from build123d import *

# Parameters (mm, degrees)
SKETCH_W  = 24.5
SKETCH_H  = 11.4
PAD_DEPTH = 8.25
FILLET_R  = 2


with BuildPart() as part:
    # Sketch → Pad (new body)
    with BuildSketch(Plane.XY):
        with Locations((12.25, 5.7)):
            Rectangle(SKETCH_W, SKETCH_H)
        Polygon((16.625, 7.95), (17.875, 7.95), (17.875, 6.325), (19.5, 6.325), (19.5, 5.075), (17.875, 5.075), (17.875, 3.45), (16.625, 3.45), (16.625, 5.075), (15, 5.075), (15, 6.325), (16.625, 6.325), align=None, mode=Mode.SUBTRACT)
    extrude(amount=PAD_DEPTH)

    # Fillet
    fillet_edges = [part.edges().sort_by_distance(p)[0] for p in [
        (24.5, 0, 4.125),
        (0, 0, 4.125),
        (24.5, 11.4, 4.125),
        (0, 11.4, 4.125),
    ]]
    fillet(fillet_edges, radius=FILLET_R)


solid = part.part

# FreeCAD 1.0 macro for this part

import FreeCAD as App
import Part
import Sketcher


def edges_at(feature, points):
    """Names of the edges that pass closest to the given points."""
    edges = feature.Shape.Edges
    near = lambda p: min(range(len(edges)), key=lambda i: edges[i].distToShape(Part.Vertex(*p))[0])
    return sorted({f"Edge{near(p) + 1}" for p in points})

doc = App.newDocument("Part")
params = doc.addObject("Spreadsheet::Sheet", "Params")
for row, (alias, value) in enumerate([
    ("sketch1_width", "24.5 mm"),
    ("sketch1_height", "11.4 mm"),
    ("sketch1_width2", "1.25 mm"),
    ("pad1_length", "8.25 mm"),
    ("fillet_radius", "2 mm"),
], start=1):
    params.set(f"A{row}", alias)
    params.set(f"B{row}", "=" + value)
    params.setAlias(f"B{row}", alias)

body = doc.addObject("PartDesign::Body", "Body")

# Sketch on XY plane
sketch1 = doc.addObject("Sketcher::SketchObject", "Sketch")
body.addObject(sketch1)
sketch1.AttachmentSupport = (doc.XY_Plane, [""])
sketch1.MapMode = "FlatFace"
sketch1.addGeometry([
    Part.LineSegment(App.Vector(0, 11.4, 0), App.Vector(0, 0, 0)),  # 0
    Part.LineSegment(App.Vector(0, 0, 0), App.Vector(24.5, 0, 0)),  # 1
    Part.LineSegment(App.Vector(24.5, 0, 0), App.Vector(24.5, 11.4, 0)),  # 2
    Part.LineSegment(App.Vector(24.5, 11.4, 0), App.Vector(0, 11.4, 0)),  # 3
    Part.LineSegment(App.Vector(16.625, 6.325, 0), App.Vector(16.625, 7.95, 0)),  # 4
    Part.LineSegment(App.Vector(16.625, 7.95, 0), App.Vector(17.875, 7.95, 0)),  # 5
    Part.LineSegment(App.Vector(17.875, 7.95, 0), App.Vector(17.875, 6.325, 0)),  # 6
    Part.LineSegment(App.Vector(17.875, 6.325, 0), App.Vector(19.5, 6.325, 0)),  # 7
    Part.LineSegment(App.Vector(19.5, 6.325, 0), App.Vector(19.5, 5.075, 0)),  # 8
    Part.LineSegment(App.Vector(19.5, 5.075, 0), App.Vector(17.875, 5.075, 0)),  # 9
    Part.LineSegment(App.Vector(17.875, 5.075, 0), App.Vector(17.875, 3.45, 0)),  # 10
    Part.LineSegment(App.Vector(17.875, 3.45, 0), App.Vector(16.625, 3.45, 0)),  # 11
    Part.LineSegment(App.Vector(16.625, 3.45, 0), App.Vector(16.625, 5.075, 0)),  # 12
    Part.LineSegment(App.Vector(16.625, 5.075, 0), App.Vector(15, 5.075, 0)),  # 13
    Part.LineSegment(App.Vector(15, 5.075, 0), App.Vector(15, 6.325, 0)),  # 14
    Part.LineSegment(App.Vector(15, 6.325, 0), App.Vector(16.625, 6.325, 0)),  # 15
], False)
sketch1.addConstraint([
    Sketcher.Constraint("Coincident", 0, 2, 1, 1),
    Sketcher.Constraint("Coincident", 1, 2, 2, 1),
    Sketcher.Constraint("Coincident", 2, 2, 3, 1),
    Sketcher.Constraint("Coincident", 3, 2, 0, 1),
    Sketcher.Constraint("Coincident", 4, 2, 5, 1),
    Sketcher.Constraint("Coincident", 5, 2, 6, 1),
    Sketcher.Constraint("Coincident", 6, 2, 7, 1),
    Sketcher.Constraint("Coincident", 7, 2, 8, 1),
    Sketcher.Constraint("Coincident", 8, 2, 9, 1),
    Sketcher.Constraint("Coincident", 9, 2, 10, 1),
    Sketcher.Constraint("Coincident", 10, 2, 11, 1),
    Sketcher.Constraint("Coincident", 11, 2, 12, 1),
    Sketcher.Constraint("Coincident", 12, 2, 13, 1),
    Sketcher.Constraint("Coincident", 13, 2, 14, 1),
    Sketcher.Constraint("Coincident", 14, 2, 15, 1),
    Sketcher.Constraint("Coincident", 15, 2, 4, 1),
    Sketcher.Constraint("Vertical", 0),
    Sketcher.Constraint("Horizontal", 1),
    Sketcher.Constraint("Vertical", 2),
    Sketcher.Constraint("Horizontal", 3),
    Sketcher.Constraint("Vertical", 4),
    Sketcher.Constraint("Horizontal", 5),
    Sketcher.Constraint("Vertical", 6),
    Sketcher.Constraint("Horizontal", 7),
    Sketcher.Constraint("Vertical", 8),
    Sketcher.Constraint("Horizontal", 9),
    Sketcher.Constraint("Vertical", 10),
    Sketcher.Constraint("Horizontal", 11),
    Sketcher.Constraint("Vertical", 12),
    Sketcher.Constraint("Horizontal", 13),
    Sketcher.Constraint("Vertical", 14),
    Sketcher.Constraint("Horizontal", 15),
    Sketcher.Constraint("Coincident", 0, 2, -1, 1),
    Sketcher.Constraint("Horizontal", 9, 2, 12, 2),
    Sketcher.Constraint("Horizontal", 7, 2, 14, 2),
    Sketcher.Constraint("Vertical", 6, 2, 9, 2),
    Sketcher.Constraint("Vertical", 4, 2, 11, 2),
    Sketcher.Constraint("Equal", 9, 13),
    Sketcher.Constraint("Equal", 15, 4),
    Sketcher.Constraint("Equal", 11, 8),
    Sketcher.Constraint("Equal", 6, 10),
    Sketcher.Constraint("DistanceX", 1, 1, 1, 2, 24.5),
    Sketcher.Constraint("DistanceY", 0, 2, 0, 1, 11.4),
    Sketcher.Constraint("DistanceX", -1, 1, 13, 2, 15.0),
    Sketcher.Constraint("DistanceX", 7, 2, 2, 2, 5.0),
    Sketcher.Constraint("DistanceX", 5, 1, 5, 2, 1.25),
    Sketcher.Constraint("DistanceY", -1, 1, 4, 2, 7.95),
])
sketch1.setExpression("Constraints[41]", "Params.sketch1_width")
sketch1.setExpression("Constraints[42]", "Params.sketch1_height")
sketch1.setExpression("Constraints[45]", "Params.sketch1_width2")
pad1 = doc.addObject("PartDesign::Pad", "Pad")
body.addObject(pad1)
pad1.Profile = sketch1
pad1.setExpression("Length", "Params.pad1_length")
doc.recompute()

fillet = doc.addObject("PartDesign::Fillet", "Fillet")
body.addObject(fillet)
fillet.Base = (pad1, edges_at(pad1, [
    (24.5, 0, 4.125),
    (0, 0, 4.125),
    (24.5, 11.4, 4.125),
    (0, 11.4, 4.125),
]))
fillet.setExpression("Radius", "Params.fillet_radius")

doc.recompute()
